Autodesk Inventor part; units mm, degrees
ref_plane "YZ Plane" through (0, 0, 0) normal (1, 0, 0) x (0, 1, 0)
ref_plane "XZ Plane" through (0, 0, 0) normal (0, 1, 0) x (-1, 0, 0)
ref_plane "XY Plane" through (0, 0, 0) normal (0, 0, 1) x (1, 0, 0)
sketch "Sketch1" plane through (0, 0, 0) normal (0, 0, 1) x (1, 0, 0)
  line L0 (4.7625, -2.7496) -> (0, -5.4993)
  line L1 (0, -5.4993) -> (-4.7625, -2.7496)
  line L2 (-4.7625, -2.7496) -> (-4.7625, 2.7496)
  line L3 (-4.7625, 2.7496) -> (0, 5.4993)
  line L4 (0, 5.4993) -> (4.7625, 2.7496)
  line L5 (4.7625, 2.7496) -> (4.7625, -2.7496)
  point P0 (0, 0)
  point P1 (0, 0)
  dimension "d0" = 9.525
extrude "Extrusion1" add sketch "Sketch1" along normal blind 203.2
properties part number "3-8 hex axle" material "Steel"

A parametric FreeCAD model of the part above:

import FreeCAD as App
import Part
import Sketcher

V = App.Vector
Q = App.Units.Quantity

doc = App.newDocument("Part")
body = doc.addObject("PartDesign::Body", "Body")

# Sketch on XY plane
sketch1 = body.newObject("Sketcher::SketchObject", "Sketch")
sketch1.AttachmentSupport = (doc.getObject("XY_Plane"), [""])
sketch1.MapMode = "FlatFace"
sketch1.addGeometry(Part.LineSegment(V(0, -5, 0), V(5, -3, 0)), False)
sketch1.addGeometry(Part.LineSegment(V(5, -3, 0), V(5, 3, 0)), False)
sketch1.addGeometry(Part.LineSegment(V(5, 3, 0), V(0, 5, 0)), False)
sketch1.addGeometry(Part.LineSegment(V(0, 5, 0), V(-5, 3, 0)), False)
sketch1.addGeometry(Part.LineSegment(V(-5, 3, 0), V(-5, -3, 0)), False)
sketch1.addGeometry(Part.LineSegment(V(-5, -3, 0), V(0, -5, 0)), False)
sketch1.addConstraint(Sketcher.Constraint("Coincident", 0, 2, 1, 1))
sketch1.addConstraint(Sketcher.Constraint("Coincident", 1, 2, 2, 1))
sketch1.addConstraint(Sketcher.Constraint("Coincident", 2, 2, 3, 1))
sketch1.addConstraint(Sketcher.Constraint("Coincident", 3, 2, 4, 1))
sketch1.addConstraint(Sketcher.Constraint("Coincident", 4, 2, 5, 1))
sketch1.addConstraint(Sketcher.Constraint("Coincident", 5, 2, 0, 1))
sketch1.addConstraint(Sketcher.Constraint("Vertical", 1))
sketch1.addConstraint(Sketcher.Constraint("Vertical", 4))
sketch1.addConstraint(Sketcher.Constraint("Symmetric", 0, 2, 3, 2, -1, 1))
sketch1.addConstraint(Sketcher.Constraint("Symmetric", 2, 2, 5, 2, -1, 1))
sketch1.addConstraint(Sketcher.Constraint("PointOnObject", 2, 2, -2))
sketch1.addConstraint(Sketcher.Constraint("Parallel", 2, 5))
sketch1.addConstraint(Sketcher.Constraint("Horizontal", 1, 2, 3, 2))
sketch1.addConstraint(Sketcher.Constraint("Angle", 0, Q("30.0006 deg")))
sketch1.addConstraint(Sketcher.Constraint("DistanceX", 3, 2, 1, 2, Q("0.375 in")))
sketch1.addConstraint(Sketcher.Constraint("DistanceY", 1, 1, 1, 2, Q("0.2165 in")))
pad1 = body.newObject("PartDesign::Pad", "Pad")
pad1.Profile = sketch1
pad1.Length = Q("8 in")

doc.recompute()
